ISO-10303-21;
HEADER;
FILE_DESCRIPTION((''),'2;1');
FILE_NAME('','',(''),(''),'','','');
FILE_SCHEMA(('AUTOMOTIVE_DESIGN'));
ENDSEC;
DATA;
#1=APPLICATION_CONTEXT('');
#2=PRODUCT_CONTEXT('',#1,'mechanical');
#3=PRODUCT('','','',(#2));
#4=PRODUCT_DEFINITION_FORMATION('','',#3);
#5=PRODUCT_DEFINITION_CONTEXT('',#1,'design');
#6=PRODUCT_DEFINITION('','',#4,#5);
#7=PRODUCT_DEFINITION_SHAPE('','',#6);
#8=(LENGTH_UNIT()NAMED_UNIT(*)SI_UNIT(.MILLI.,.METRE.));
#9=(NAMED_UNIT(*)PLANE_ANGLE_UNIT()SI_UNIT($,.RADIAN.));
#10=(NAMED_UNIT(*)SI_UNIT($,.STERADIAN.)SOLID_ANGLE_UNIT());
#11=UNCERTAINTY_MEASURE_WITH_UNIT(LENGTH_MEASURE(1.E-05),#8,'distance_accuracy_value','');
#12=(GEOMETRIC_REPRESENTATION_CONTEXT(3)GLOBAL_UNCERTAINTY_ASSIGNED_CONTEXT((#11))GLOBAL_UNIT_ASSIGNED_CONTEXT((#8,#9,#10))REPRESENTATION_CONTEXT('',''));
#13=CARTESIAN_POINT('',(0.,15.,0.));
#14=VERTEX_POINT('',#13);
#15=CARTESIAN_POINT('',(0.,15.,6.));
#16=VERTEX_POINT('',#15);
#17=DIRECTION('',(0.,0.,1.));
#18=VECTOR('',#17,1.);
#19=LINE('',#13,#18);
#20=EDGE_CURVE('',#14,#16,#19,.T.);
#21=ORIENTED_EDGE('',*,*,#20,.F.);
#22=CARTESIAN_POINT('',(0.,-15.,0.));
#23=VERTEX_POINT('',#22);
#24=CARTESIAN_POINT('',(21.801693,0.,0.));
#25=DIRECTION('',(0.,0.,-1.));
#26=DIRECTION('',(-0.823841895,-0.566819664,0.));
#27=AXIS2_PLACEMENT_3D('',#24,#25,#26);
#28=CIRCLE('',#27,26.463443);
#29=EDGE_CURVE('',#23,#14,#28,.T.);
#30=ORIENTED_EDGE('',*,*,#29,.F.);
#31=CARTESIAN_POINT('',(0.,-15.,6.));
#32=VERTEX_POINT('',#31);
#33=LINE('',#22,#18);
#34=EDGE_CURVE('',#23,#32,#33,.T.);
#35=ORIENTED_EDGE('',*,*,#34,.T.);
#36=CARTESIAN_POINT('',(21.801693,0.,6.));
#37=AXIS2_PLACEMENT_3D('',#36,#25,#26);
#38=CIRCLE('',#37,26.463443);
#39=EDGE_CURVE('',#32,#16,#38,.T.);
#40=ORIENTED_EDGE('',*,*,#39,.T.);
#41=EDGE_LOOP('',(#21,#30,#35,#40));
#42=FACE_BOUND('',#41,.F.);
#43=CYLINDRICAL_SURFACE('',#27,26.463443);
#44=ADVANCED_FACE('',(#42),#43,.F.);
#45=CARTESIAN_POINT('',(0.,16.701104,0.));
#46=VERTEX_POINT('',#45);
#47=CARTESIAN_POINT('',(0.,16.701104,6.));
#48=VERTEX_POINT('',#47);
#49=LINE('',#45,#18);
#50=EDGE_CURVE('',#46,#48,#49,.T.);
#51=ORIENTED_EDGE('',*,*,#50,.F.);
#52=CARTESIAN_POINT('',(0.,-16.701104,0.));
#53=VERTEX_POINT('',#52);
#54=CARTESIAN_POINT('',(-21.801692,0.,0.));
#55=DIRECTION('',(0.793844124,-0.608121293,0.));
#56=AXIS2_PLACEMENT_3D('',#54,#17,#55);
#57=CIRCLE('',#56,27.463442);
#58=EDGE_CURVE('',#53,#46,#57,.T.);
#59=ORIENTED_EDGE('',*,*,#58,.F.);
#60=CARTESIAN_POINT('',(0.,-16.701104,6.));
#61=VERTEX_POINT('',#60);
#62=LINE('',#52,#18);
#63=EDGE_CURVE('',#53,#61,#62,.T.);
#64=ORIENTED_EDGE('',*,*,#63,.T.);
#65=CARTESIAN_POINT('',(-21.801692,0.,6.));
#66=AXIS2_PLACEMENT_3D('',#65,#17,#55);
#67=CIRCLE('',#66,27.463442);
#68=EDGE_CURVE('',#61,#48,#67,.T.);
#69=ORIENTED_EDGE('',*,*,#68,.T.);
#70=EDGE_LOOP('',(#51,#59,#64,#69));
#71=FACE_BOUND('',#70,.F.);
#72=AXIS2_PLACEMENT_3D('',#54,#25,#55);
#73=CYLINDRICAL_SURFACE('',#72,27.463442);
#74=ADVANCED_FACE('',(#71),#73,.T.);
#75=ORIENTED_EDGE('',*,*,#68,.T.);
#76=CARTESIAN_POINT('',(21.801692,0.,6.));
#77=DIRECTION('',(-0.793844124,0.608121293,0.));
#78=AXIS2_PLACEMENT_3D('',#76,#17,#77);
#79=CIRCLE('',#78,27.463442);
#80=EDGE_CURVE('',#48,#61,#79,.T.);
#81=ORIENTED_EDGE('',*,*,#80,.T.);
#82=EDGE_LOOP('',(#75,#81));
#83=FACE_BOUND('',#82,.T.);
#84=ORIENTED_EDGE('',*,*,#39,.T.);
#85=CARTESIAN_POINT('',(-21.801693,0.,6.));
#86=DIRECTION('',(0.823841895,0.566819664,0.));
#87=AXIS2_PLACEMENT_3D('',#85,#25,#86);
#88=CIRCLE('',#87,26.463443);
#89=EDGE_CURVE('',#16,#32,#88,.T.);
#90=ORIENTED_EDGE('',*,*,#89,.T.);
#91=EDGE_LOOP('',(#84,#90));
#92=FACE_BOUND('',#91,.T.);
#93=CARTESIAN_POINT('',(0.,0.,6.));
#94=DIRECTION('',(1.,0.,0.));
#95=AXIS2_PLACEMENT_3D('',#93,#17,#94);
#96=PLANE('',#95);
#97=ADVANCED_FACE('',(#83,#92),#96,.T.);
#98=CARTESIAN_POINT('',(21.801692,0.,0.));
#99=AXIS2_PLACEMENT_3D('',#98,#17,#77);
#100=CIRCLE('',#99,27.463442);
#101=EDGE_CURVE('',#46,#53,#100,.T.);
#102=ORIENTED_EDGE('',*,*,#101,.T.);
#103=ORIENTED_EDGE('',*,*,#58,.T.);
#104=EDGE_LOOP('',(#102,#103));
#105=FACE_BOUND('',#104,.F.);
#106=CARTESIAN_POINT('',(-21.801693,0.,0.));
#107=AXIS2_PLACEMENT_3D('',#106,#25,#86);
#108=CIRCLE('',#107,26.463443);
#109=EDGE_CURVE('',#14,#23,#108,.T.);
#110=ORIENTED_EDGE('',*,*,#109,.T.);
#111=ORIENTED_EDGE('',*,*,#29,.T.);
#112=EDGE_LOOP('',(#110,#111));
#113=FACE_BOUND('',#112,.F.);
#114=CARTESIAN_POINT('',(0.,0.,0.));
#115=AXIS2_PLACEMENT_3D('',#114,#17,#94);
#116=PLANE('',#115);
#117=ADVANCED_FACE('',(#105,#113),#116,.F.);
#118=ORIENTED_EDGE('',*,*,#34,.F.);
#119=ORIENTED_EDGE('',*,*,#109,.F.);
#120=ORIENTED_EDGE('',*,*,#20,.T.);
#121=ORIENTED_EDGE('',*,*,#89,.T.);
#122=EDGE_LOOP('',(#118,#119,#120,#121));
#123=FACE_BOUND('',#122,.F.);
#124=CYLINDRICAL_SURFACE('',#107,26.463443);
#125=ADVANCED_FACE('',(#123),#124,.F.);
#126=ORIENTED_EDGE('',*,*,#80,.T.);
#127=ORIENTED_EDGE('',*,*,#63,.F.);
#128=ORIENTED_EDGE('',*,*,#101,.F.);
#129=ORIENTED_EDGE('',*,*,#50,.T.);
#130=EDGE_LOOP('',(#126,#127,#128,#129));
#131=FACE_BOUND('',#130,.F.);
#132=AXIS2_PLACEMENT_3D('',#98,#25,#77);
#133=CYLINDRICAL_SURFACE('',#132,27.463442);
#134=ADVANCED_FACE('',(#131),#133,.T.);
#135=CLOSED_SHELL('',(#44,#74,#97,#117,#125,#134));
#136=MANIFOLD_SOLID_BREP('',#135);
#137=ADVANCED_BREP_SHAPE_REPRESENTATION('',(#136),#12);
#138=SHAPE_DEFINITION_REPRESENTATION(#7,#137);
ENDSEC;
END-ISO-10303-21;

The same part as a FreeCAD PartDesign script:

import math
import FreeCAD as App
import Part
import Sketcher

V = App.Vector
Q = App.Units.Quantity

doc = App.newDocument("Part")
body = doc.addObject("PartDesign::Body", "Body")

# Sketch on XY plane
sketch1 = body.newObject("Sketcher::SketchObject", "Sketch")
sketch1.AttachmentSupport = (doc.getObject("XY_Plane"), [""])
sketch1.MapMode = "FlatFace"
sketch1.addGeometry([
    Part.ArcOfCircle(Part.Circle(V(-22, 0, 0), V(0, 0, 1), 27), math.radians(-37), math.radians(37)),
    Part.ArcOfCircle(Part.Circle(V(22, 0, 0), V(0, 0, 1), 27), math.radians(143), math.radians(217)),
    Part.ArcOfCircle(Part.Circle(V(22, 0, 0), V(0, 0, 1), 26), math.radians(145), math.radians(215)),
    Part.ArcOfCircle(Part.Circle(V(-22, 0, 0), V(0, 0, 1), 26), math.radians(-35), math.radians(35)),
], False)
sketch1.addConstraint([
    Sketcher.Constraint("Coincident", 0, 1, 1, 2),
    Sketcher.Constraint("Coincident", 1, 1, 0, 2),
    Sketcher.Constraint("Coincident", 2, 1, 3, 2),
    Sketcher.Constraint("Coincident", 3, 1, 2, 2),
    Sketcher.Constraint("Coincident", 2, 3, 1, 3),
    Sketcher.Constraint("Coincident", 3, 3, 0, 3),
    Sketcher.Constraint("Equal", 0, 1),
    Sketcher.Constraint("Equal", 2, 3),
    Sketcher.Constraint("Symmetric", 0, 3, 1, 3, -1, 1),
    Sketcher.Constraint("PointOnObject", 0, 3, -1),
    Sketcher.Constraint("DistanceY", -1, 1, 2, 1, Q("15 mm")),
    Sketcher.Constraint("Radius", 0, Q("27.463442 mm")),
    Sketcher.Constraint("Radius", 2, Q("26.463443 mm")),
])
pad1 = body.newObject("PartDesign::Pad", "Pad")
pad1.Profile = sketch1
pad1.Length = 6

doc.recompute()
